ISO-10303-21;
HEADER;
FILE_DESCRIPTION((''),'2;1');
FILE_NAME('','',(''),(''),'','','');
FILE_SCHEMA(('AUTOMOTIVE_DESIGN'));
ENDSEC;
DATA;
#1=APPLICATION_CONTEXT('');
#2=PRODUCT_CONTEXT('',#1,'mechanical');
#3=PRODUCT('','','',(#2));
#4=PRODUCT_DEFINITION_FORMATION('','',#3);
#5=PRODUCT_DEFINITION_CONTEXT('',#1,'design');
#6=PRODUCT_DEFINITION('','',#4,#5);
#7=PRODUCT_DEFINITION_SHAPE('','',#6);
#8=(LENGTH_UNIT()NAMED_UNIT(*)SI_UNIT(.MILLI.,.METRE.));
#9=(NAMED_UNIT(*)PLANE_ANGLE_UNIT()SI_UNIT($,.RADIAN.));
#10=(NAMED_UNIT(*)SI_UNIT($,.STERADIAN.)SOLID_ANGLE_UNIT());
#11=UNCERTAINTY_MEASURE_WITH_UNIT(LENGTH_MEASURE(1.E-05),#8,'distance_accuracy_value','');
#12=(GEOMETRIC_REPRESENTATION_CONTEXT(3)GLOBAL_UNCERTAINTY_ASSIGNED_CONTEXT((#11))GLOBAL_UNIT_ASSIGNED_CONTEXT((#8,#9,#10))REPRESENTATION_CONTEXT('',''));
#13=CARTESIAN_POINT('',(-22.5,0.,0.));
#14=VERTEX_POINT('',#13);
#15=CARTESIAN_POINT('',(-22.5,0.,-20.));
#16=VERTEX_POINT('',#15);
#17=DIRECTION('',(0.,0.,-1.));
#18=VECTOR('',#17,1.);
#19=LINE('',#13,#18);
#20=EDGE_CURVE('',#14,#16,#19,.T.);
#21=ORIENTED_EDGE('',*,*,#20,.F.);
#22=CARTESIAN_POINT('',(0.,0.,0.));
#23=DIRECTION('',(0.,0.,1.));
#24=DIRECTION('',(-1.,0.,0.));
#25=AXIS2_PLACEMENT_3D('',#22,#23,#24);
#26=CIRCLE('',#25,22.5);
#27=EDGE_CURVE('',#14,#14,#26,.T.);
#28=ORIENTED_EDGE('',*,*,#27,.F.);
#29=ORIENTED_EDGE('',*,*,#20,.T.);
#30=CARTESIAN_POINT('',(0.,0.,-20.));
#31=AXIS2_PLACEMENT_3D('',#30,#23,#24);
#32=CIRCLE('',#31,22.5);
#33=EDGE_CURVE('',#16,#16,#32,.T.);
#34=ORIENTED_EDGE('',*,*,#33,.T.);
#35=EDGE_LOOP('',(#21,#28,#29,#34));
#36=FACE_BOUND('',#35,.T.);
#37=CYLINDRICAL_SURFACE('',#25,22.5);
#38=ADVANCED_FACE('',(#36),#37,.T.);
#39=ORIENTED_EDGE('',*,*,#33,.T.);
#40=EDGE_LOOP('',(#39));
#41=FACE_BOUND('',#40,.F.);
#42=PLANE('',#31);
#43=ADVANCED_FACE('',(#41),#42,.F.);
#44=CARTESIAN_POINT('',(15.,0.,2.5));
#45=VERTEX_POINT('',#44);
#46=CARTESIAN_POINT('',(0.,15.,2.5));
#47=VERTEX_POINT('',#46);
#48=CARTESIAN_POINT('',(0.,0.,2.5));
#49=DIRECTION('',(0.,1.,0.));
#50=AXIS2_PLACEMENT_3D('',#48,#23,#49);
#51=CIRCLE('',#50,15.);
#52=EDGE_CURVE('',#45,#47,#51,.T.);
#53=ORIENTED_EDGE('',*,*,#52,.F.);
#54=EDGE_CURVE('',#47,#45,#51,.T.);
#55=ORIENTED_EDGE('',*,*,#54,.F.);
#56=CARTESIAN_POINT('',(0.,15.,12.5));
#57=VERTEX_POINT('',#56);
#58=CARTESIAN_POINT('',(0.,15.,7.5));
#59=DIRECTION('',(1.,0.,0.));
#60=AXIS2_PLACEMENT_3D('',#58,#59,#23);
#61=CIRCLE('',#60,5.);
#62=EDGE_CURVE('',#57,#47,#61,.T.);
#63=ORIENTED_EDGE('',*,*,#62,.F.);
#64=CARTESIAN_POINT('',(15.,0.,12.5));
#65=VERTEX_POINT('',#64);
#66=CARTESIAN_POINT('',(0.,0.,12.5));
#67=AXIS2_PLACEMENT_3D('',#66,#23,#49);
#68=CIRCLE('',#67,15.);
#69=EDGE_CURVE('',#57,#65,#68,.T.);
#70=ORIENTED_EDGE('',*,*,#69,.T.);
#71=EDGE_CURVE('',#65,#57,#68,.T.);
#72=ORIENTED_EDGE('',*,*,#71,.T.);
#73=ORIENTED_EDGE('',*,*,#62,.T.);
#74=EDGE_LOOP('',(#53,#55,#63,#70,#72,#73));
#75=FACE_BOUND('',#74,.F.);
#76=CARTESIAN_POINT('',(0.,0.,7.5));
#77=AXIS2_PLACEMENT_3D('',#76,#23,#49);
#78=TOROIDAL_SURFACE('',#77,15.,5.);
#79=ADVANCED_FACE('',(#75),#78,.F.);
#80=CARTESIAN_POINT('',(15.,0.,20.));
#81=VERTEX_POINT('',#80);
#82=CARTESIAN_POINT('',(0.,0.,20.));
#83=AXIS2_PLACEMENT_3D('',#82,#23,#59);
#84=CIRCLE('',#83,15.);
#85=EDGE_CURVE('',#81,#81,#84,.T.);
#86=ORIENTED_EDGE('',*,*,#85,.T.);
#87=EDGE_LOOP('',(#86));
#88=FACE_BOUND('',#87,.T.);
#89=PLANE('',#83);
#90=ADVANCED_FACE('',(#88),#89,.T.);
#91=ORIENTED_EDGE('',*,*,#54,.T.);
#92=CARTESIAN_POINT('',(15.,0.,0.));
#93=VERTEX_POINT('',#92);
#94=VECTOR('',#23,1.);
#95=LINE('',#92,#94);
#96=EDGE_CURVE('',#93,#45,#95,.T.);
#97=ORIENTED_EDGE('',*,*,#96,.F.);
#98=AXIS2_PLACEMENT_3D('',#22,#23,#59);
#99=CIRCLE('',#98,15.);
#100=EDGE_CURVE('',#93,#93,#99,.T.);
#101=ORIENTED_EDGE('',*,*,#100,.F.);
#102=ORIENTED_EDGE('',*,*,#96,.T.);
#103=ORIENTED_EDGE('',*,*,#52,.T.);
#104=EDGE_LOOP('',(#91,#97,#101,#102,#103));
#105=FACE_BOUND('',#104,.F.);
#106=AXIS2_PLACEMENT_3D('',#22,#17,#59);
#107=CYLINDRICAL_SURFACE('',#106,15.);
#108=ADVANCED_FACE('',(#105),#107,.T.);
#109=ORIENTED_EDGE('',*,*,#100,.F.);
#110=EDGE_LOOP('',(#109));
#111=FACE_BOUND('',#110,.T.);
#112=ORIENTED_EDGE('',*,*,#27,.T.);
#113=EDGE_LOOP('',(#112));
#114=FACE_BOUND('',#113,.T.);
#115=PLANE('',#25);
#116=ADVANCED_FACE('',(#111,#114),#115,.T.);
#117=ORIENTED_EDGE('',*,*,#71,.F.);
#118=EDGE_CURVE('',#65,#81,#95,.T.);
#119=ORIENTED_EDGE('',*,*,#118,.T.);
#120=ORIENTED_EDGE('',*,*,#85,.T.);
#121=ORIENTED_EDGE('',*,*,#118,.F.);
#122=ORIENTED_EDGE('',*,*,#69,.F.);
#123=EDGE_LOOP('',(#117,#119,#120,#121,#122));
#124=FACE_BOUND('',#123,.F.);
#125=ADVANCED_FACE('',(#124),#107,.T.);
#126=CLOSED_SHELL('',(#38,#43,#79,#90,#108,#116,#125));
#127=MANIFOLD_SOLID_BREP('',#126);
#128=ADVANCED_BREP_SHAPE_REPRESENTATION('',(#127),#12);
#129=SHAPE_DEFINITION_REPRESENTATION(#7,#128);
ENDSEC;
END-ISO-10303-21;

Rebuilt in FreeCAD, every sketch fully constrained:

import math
import FreeCAD as App
import Part
import Sketcher
from FreeCAD import Vector
Q = App.Units.Quantity

doc = App.newDocument("Part")
body = doc.addObject("PartDesign::Body", "Body")

# Sketch on XY plane
sketch1 = body.newObject("Sketcher::SketchObject", "Sketch")
sketch1.AttachmentSupport = (doc.getObject("XY_Plane"), [""])
sketch1.MapMode = "FlatFace"
sketch1.addGeometry(Part.Circle(Vector(0, 0, 0), Vector(0, 0, 1), 22), False)
sketch1.addConstraint([
    Sketcher.Constraint("Coincident", 0, 3, -1, 1),
    Sketcher.Constraint("Diameter", 0, Q("45 mm")),
])
pad1 = body.newObject("PartDesign::Pad", "Pad")
pad1.Profile = sketch1
pad1.Length = 20
pad1.Reversed = True

# Sketch on XY plane
sketch2 = body.newObject("Sketcher::SketchObject", "Sketch001")
sketch2.AttachmentSupport = (doc.getObject("XY_Plane"), [""])
sketch2.MapMode = "FlatFace"
sketch2.addGeometry(Part.Circle(Vector(0, 0, 0), Vector(0, 0, 1), 15), False)
sketch2.addConstraint([
    Sketcher.Constraint("Coincident", 0, 3, -1, 1),
    Sketcher.Constraint("Diameter", 0, Q("30 mm")),
])
pad2 = body.newObject("PartDesign::Pad", "Pad001")
pad2.Profile = sketch2
pad2.Length = 20

# Sketch on YZ plane
sketch3 = body.newObject("Sketcher::SketchObject", "Sketch002")
sketch3.AttachmentSupport = (doc.getObject("YZ_Plane"), [""])
sketch3.MapMode = "FlatFace"
sketch3.addGeometry([
    Part.ArcOfCircle(Part.Circle(Vector(15, 8, 0), Vector(0, 0, 1), 5), math.radians(90), math.radians(270)),
    Part.LineSegment(Vector(15, 2, 0), Vector(15, 12, 0)),
], False)
sketch3.addConstraint([
    Sketcher.Constraint("Coincident", 0, 1, 1, 2),
    Sketcher.Constraint("Coincident", 1, 1, 0, 2),
    Sketcher.Constraint("Vertical", 1),
    Sketcher.Constraint("Radius", 0, Q("5 mm")),
    Sketcher.Constraint("DistanceY", -1, 1, 0, 3, Q("7.5 mm")),
    Sketcher.Constraint("DistanceX", -1, 1, 0, 3, Q("15 mm")),
    Sketcher.Constraint("DistanceX", -1, 1, 0, 1, Q("15 mm")),
])
groove = body.newObject("PartDesign::Groove", "Groove")
groove.Profile = sketch3
groove.ReferenceAxis = (sketch3, ["V_Axis"])
groove.Angle = 360

doc.recompute()
